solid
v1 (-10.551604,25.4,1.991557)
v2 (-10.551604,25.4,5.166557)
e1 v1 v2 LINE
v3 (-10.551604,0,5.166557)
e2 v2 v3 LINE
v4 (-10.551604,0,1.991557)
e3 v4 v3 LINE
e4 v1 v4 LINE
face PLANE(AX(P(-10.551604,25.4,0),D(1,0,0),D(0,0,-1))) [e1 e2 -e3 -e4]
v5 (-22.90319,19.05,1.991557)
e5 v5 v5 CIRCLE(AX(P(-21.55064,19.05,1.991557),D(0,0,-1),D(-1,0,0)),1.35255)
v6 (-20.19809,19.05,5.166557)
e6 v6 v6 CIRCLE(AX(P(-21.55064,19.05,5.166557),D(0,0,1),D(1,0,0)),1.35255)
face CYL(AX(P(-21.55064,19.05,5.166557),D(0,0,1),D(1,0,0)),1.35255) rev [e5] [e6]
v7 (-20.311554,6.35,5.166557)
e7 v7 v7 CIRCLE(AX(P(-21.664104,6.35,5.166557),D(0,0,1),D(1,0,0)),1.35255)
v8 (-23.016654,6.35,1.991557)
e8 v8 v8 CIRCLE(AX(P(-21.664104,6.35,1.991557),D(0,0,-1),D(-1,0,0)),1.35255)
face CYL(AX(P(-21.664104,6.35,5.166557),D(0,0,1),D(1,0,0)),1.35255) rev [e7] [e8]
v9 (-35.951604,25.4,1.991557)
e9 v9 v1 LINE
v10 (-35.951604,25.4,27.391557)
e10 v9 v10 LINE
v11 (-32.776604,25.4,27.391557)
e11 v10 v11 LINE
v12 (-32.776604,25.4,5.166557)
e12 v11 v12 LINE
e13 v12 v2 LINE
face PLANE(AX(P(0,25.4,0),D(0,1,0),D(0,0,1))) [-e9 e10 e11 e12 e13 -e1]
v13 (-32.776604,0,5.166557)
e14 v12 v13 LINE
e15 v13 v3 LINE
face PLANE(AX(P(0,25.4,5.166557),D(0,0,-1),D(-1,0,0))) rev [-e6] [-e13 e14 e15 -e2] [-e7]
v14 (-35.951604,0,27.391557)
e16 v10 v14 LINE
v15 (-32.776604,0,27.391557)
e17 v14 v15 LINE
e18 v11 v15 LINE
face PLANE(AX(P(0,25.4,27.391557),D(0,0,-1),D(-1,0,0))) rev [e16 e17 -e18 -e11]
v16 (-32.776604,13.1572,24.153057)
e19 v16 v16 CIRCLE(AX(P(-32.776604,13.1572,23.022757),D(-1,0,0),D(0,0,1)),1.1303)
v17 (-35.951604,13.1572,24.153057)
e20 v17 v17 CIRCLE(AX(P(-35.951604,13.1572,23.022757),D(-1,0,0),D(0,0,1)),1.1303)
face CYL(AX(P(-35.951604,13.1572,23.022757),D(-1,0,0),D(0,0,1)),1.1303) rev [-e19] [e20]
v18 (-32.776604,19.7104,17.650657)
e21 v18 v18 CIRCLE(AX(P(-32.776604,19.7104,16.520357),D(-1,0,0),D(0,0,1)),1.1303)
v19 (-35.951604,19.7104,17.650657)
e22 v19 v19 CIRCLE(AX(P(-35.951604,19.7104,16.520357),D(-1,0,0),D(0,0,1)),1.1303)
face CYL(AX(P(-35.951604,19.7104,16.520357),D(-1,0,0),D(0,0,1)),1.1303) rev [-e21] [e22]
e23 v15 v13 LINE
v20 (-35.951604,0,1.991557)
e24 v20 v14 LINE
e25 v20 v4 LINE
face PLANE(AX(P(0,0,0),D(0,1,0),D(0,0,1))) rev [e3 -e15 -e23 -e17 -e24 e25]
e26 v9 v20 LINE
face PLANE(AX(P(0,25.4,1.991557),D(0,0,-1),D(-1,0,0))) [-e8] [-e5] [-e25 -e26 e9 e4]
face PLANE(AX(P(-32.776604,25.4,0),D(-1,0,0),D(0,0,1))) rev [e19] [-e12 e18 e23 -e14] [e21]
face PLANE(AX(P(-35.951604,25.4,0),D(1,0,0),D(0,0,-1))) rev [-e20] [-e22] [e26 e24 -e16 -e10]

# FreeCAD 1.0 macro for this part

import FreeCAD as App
import Part
import Sketcher
from FreeCAD import Vector
Q = App.Units.Quantity


def add_polygon(sketch, points):
    """Adds a closed chain of lines whose ends are joined by coincident constraints."""
    first, n = sketch.GeometryCount, len(points)
    for a, b in zip(points, points[1:] + points[:1]):
        sketch.addGeometry(Part.LineSegment(App.Vector(*a, 0), App.Vector(*b, 0)), False)
    for i in range(n):
        sketch.addConstraint(Sketcher.Constraint("Coincident", first + i, 2, first + (i + 1) % n, 1))

doc = App.newDocument("Part")
params = doc.addObject("Spreadsheet::Sheet", "Params")
for row, (alias, value) in enumerate([
    ("sketch1_width", "1 in"),
    ("sketch1_width2", "0.125 in"),
    ("pad1_length", "1 in"),
    ("sketch2_diameter", "0.089 in"),
    ("hole_diameter", "0.089 in"),
    ("hole_depth", "0.13 in"),
    ("hole2_diameter", "0.1065 in"),
    ("hole2_depth", "0.13 in"),
], start=1):
    params.set(f"A{row}", alias)
    params.set(f"B{row}", "=" + value)
    params.setAlias(f"B{row}", alias)

body = doc.addObject("PartDesign::Body", "Body")

sketch1 = body.newObject("Sketcher::SketchObject", "Sketch")
sketch1.AttachmentSupport = (doc.getObject("XZ_Plane"), [""])
sketch1.MapMode = "FlatFace"
add_polygon(sketch1, [(-35.951604, 27.391557), (-32.776604, 27.391557), (-32.776604, 5.166557), (-10.551604, 5.166557), (-10.551604, 1.991557), (-35.951604, 1.991557)])
sketch1.addConstraint(Sketcher.Constraint("Horizontal", 0))
sketch1.addConstraint(Sketcher.Constraint("Vertical", 1))
sketch1.addConstraint(Sketcher.Constraint("Horizontal", 2))
sketch1.addConstraint(Sketcher.Constraint("Vertical", 3))
sketch1.addConstraint(Sketcher.Constraint("Horizontal", 4))
sketch1.addConstraint(Sketcher.Constraint("Vertical", 5))
sketch1.addConstraint(Sketcher.Constraint("Equal", 2, 1))
sketch1.addConstraint(Sketcher.Constraint("Equal", 0, 3))
sketch1.addConstraint(Sketcher.Constraint("DistanceX", 4, 2, 4, 1, Q("1 in")))
sketch1.addConstraint(Sketcher.Constraint("DistanceX", 0, 1, 0, 2, Q("0.125 in")))
sketch1.addConstraint(Sketcher.Constraint("DistanceX", 0, 2, -1, 1, 32.776604))
sketch1.addConstraint(Sketcher.Constraint("DistanceY", -1, 1, 0, 2, 27.391557))
sketch1.setExpression("Constraints[14]", "Params.sketch1_width")
sketch1.setExpression("Constraints[15]", "Params.sketch1_width2")
pad1 = body.newObject("PartDesign::Pad", "Pad")
pad1.Profile = sketch1
pad1.setExpression("Length", "Params.pad1_length")
pad1.Reversed = True

sketch2 = body.newObject("Sketcher::SketchObject", "Sketch001")
sketch2.AttachmentSupport = (doc.getObject("YZ_Plane"), [""])
sketch2.MapMode = "FlatFace"
sketch2.AttachmentOffset = App.Placement(Vector(0, 0, -35.951604), App.Rotation())
sketch2.addGeometry(Part.Circle(Vector(19.7104, 16.520357, 0), Vector(0, 0, 1), 1.1303), False)
sketch2.addGeometry(Part.Circle(Vector(13.1572, 23.022757, 0), Vector(0, 0, 1), 1.1303), False)
sketch2.addConstraint(Sketcher.Constraint("Equal", 0, 1))
sketch2.addConstraint(Sketcher.Constraint("Diameter", 0, Q("0.089 in")))
sketch2.addConstraint(Sketcher.Constraint("DistanceX", -1, 1, 0, 3, Q("0.776 in")))
sketch2.addConstraint(Sketcher.Constraint("DistanceX", -1, 1, 1, 3, Q("0.518 in")))
sketch2.addConstraint(Sketcher.Constraint("DistanceY", 0, 3, 1, 3, Q("0.256 in")))
sketch2.addConstraint(Sketcher.Constraint("DistanceY", -1, 1, 0, 3, 16.520357))
sketch2.setExpression("Constraints[1]", "Params.sketch2_diameter")
doc.recompute()
hole = body.newObject("PartDesign::Hole", "Hole")
hole.Profile = sketch2
hole.ThreadType = "None"
hole.setExpression("Diameter", "Params.hole_diameter")
hole.DepthType = "Dimension"
hole.setExpression("Depth", "Params.hole_depth")
hole.DrillPoint = "Angled"
hole.DrillPointAngle = 118
hole.Reversed = True

sketch3 = body.newObject("Sketcher::SketchObject", "Sketch002")
sketch3.AttachmentSupport = (doc.getObject("XY_Plane"), [""])
sketch3.MapMode = "FlatFace"
sketch3.AttachmentOffset = App.Placement(Vector(0, 0, 5.166557), App.Rotation())
sketch3.addGeometry(Part.Circle(Vector(-21.664104, 6.35, 0), Vector(0, 0, 1), 1.35255), False)
sketch3.addGeometry(Part.Circle(Vector(-21.55064, 19.05, 0), Vector(0, 0, 1), 1.35255), False)
sketch3.addConstraint(Sketcher.Constraint("Equal", 0, 1))
sketch3.addConstraint(Sketcher.Constraint("Diameter", 0, Q("0.1065 in")))
sketch3.addConstraint(Sketcher.Constraint("DistanceY", 0, 3, 1, 3, Q("0.5 in")))
sketch3.addConstraint(Sketcher.Constraint("DistanceY", -1, 1, 0, 3, Q("0.25 in")))
sketch3.addConstraint(Sketcher.Constraint("DistanceX", 1, 3, -1, 1, 21.55064))
sketch3.addConstraint(Sketcher.Constraint("DistanceX", 0, 3, -1, 1, 21.664104))
doc.recompute()
hole2 = body.newObject("PartDesign::Hole", "Hole001")
hole2.Profile = sketch3
hole2.ThreadType = "None"
hole2.setExpression("Diameter", "Params.hole2_diameter")
hole2.DepthType = "Dimension"
hole2.setExpression("Depth", "Params.hole2_depth")
hole2.DrillPoint = "Angled"
hole2.DrillPointAngle = 118

doc.recompute()
